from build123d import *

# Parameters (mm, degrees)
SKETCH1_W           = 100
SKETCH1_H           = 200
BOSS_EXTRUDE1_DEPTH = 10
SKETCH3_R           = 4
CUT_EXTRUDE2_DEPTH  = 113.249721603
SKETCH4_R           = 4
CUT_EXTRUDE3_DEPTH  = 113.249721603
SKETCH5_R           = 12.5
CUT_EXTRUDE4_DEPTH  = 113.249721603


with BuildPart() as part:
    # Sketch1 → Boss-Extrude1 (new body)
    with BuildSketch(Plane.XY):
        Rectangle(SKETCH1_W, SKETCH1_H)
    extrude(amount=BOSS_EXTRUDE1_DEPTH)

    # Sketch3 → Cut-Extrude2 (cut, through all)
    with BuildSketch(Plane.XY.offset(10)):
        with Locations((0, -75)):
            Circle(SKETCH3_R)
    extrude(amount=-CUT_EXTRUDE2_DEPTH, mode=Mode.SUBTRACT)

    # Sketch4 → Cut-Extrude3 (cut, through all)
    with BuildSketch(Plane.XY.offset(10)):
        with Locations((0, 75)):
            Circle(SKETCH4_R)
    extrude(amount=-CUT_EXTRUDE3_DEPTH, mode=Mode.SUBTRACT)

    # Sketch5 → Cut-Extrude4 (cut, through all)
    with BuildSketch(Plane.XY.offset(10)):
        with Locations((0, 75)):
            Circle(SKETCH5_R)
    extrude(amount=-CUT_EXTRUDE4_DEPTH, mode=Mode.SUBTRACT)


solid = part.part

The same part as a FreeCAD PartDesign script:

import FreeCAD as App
import Part
import Sketcher

V = App.Vector


def add_polygon(sketch, points):
    """Adds a closed chain of lines whose ends are joined by coincident constraints."""
    first, n = sketch.GeometryCount, len(points)
    for a, b in zip(points, points[1:] + points[:1]):
        sketch.addGeometry(Part.LineSegment(App.Vector(*a, 0), App.Vector(*b, 0)), False)
    for i in range(n):
        sketch.addConstraint(Sketcher.Constraint("Coincident", first + i, 2, first + (i + 1) % n, 1))

doc = App.newDocument("Part")
body = doc.addObject("PartDesign::Body", "Body")

# Sketch on XY plane
sketch1 = body.newObject("Sketcher::SketchObject", "Sketch")
sketch1.AttachmentSupport = (doc.getObject("XY_Plane"), [""])
sketch1.MapMode = "FlatFace"
add_polygon(sketch1, [(-50, 100), (-50, -100), (50, -100), (50, 100)])  # lines 0-3
sketch1.addConstraint([
    Sketcher.Constraint("Vertical", 0),
    Sketcher.Constraint("Horizontal", 1),
    Sketcher.Constraint("Vertical", 2),
    Sketcher.Constraint("Horizontal", 3),
    Sketcher.Constraint("Symmetric", 0, 2, 2, 2, -1, 1),
    Sketcher.Constraint("DistanceX", 1, 1, 1, 2, 100.0),
    Sketcher.Constraint("DistanceY", 0, 2, 0, 1, 200.0),
])
pad1 = body.newObject("PartDesign::Pad", "Pad")
pad1.Profile = sketch1
pad1.Length = 10

# Sketch on XY plane
sketch2 = body.newObject("Sketcher::SketchObject", "Sketch001")
sketch2.AttachmentSupport = (doc.getObject("XY_Plane"), [""])
sketch2.MapMode = "FlatFace"
sketch2.AttachmentOffset = App.Placement(V(0, 0, 10), App.Rotation())
sketch2.addGeometry(Part.Circle(V(0, -75, 0), V(0, 0, 1), 4), False)
sketch2.addConstraint([
    Sketcher.Constraint("PointOnObject", 0, 3, -2),
    Sketcher.Constraint("Diameter", 0, 8.0),
    Sketcher.Constraint("DistanceY", 0, 3, -1, 1, 75.0),
])
pocket1 = body.newObject("PartDesign::Pocket", "Pocket")
pocket1.Profile = sketch2
pocket1.Type = "ThroughAll"

# Sketch on XY plane
sketch3 = body.newObject("Sketcher::SketchObject", "Sketch002")
sketch3.AttachmentSupport = (doc.getObject("XY_Plane"), [""])
sketch3.MapMode = "FlatFace"
sketch3.AttachmentOffset = App.Placement(V(0, 0, 10), App.Rotation())
sketch3.addGeometry(Part.Circle(V(0, 75, 0), V(0, 0, 1), 4), False)
sketch3.addConstraint([
    Sketcher.Constraint("PointOnObject", 0, 3, -2),
    Sketcher.Constraint("Diameter", 0, 8.0),
    Sketcher.Constraint("DistanceY", -1, 1, 0, 3, 75.0),
])
pocket2 = body.newObject("PartDesign::Pocket", "Pocket001")
pocket2.Profile = sketch3
pocket2.Type = "ThroughAll"

# Sketch on XY plane
sketch4 = body.newObject("Sketcher::SketchObject", "Sketch003")
sketch4.AttachmentSupport = (doc.getObject("XY_Plane"), [""])
sketch4.MapMode = "FlatFace"
sketch4.AttachmentOffset = App.Placement(V(0, 0, 10), App.Rotation())
sketch4.addGeometry(Part.Circle(V(0, 75, 0), V(0, 0, 1), 12), False)
sketch4.addConstraint([
    Sketcher.Constraint("PointOnObject", 0, 3, -2),
    Sketcher.Constraint("Diameter", 0, 25.0),
    Sketcher.Constraint("DistanceY", -1, 1, 0, 3, 75.0),
])
pocket3 = body.newObject("PartDesign::Pocket", "Pocket002")
pocket3.Profile = sketch4
pocket3.Type = "ThroughAll"

doc.recompute()
